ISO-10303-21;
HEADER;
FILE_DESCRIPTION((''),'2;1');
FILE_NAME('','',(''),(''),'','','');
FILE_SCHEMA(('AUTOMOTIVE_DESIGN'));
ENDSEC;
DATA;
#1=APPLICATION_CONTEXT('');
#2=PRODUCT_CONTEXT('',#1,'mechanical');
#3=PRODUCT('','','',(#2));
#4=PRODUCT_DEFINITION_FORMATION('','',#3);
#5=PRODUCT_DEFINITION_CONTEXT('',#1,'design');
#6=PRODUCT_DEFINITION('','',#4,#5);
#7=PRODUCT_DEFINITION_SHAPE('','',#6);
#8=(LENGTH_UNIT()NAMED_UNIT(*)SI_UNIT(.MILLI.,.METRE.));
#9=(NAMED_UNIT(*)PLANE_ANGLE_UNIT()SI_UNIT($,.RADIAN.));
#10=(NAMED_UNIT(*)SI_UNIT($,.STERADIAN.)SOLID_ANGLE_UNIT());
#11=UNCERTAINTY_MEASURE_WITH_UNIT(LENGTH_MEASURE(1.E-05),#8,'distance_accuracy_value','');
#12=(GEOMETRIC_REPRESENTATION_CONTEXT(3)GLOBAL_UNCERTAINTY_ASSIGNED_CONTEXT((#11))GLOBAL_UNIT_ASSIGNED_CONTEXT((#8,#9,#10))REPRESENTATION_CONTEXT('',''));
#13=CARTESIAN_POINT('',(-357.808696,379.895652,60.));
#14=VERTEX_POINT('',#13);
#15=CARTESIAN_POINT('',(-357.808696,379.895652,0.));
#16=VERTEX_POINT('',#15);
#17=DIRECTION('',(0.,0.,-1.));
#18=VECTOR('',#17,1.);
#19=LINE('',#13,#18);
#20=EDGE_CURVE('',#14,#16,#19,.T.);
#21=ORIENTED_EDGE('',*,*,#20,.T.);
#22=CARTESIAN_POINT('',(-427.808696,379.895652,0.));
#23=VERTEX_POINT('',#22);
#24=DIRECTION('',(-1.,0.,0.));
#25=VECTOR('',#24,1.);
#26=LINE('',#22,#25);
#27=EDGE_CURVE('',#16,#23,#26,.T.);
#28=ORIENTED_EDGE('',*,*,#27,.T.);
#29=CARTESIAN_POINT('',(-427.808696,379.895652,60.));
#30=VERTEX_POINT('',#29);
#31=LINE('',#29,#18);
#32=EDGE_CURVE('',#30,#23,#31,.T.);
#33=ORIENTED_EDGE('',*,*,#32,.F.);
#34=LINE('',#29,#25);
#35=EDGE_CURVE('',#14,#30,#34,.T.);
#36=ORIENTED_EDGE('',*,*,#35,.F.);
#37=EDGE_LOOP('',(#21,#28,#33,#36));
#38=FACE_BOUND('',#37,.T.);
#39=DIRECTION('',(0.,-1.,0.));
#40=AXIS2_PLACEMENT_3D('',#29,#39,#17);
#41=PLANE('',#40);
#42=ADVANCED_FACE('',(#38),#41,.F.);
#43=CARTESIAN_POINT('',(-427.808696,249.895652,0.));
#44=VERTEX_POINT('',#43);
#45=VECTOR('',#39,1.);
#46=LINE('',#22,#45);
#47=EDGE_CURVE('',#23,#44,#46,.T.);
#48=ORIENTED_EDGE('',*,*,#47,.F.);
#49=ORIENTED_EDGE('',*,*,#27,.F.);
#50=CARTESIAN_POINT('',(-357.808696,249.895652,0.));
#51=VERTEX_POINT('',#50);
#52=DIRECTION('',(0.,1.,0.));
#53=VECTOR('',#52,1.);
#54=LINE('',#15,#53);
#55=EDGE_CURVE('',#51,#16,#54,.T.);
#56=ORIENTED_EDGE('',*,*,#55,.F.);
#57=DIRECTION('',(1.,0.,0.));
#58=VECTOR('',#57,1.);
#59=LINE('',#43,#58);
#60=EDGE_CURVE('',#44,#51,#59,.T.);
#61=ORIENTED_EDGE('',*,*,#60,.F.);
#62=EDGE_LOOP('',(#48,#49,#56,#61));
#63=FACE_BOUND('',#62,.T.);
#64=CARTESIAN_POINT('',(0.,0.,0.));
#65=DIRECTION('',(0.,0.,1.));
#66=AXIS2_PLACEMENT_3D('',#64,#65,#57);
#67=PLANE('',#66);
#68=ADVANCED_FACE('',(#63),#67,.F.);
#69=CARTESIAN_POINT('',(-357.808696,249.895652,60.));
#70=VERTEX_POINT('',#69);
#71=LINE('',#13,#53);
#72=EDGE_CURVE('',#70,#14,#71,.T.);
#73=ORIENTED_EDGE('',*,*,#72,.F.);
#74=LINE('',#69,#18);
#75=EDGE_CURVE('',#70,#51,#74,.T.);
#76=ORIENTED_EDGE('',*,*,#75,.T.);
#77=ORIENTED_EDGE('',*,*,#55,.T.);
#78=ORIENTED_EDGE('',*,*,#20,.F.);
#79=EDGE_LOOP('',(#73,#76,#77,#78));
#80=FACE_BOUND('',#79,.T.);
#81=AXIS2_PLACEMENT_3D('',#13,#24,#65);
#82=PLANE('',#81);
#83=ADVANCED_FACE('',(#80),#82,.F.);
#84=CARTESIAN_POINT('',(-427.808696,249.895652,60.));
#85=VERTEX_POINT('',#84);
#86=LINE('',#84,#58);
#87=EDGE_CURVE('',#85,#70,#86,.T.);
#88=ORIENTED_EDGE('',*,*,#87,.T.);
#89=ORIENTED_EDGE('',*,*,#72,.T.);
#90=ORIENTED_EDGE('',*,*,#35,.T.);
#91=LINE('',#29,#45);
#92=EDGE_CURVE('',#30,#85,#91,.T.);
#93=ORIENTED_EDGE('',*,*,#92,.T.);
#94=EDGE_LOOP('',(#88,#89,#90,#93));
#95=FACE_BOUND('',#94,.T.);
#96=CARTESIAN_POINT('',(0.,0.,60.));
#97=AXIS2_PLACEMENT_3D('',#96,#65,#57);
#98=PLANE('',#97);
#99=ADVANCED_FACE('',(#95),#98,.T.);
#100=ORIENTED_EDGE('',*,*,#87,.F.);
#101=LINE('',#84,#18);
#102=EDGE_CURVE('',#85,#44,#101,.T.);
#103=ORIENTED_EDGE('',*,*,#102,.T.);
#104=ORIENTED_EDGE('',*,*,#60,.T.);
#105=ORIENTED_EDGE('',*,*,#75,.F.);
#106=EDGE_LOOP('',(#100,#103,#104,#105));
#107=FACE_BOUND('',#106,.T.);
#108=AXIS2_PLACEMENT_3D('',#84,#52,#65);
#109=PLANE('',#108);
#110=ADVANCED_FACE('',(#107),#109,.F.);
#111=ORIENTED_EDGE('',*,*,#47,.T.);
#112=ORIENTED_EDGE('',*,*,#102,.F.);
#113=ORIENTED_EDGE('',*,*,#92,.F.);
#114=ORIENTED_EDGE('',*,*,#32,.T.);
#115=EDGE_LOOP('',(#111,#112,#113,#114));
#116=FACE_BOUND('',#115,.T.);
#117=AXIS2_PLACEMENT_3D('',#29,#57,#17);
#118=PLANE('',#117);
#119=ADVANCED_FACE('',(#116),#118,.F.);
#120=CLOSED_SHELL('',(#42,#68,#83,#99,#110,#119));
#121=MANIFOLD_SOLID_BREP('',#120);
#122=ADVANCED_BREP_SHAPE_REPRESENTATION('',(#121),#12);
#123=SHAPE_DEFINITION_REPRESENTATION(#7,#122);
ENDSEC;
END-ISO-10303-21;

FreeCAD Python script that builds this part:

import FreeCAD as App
import Part
import Sketcher

V = App.Vector


def add_polygon(sketch, points):
    """Adds a closed chain of lines whose ends are joined by coincident constraints."""
    first, n = sketch.GeometryCount, len(points)
    for a, b in zip(points, points[1:] + points[:1]):
        sketch.addGeometry(Part.LineSegment(App.Vector(*a, 0), App.Vector(*b, 0)), False)
    for i in range(n):
        sketch.addConstraint(Sketcher.Constraint("Coincident", first + i, 2, first + (i + 1) % n, 1))

doc = App.newDocument("Part")
body = doc.addObject("PartDesign::Body", "Body")

# Sketch on XY plane
sketch1 = body.newObject("Sketcher::SketchObject", "Sketch")
sketch1.AttachmentSupport = (doc.getObject("XY_Plane"), [""])
sketch1.MapMode = "FlatFace"
add_polygon(sketch1, [(-428, 380), (-428, 250), (-358, 250), (-358, 380)])  # lines 0-3
sketch1.addConstraint(Sketcher.Constraint("Vertical", 0))
sketch1.addConstraint(Sketcher.Constraint("Horizontal", 1))
sketch1.addConstraint(Sketcher.Constraint("Vertical", 2))
sketch1.addConstraint(Sketcher.Constraint("Horizontal", 3))
sketch1.addConstraint(Sketcher.Constraint("DistanceX", 1, 1, 1, 2, 70.0))
sketch1.addConstraint(Sketcher.Constraint("DistanceY", 0, 2, 0, 1, 130.0))
sketch1.addConstraint(Sketcher.Constraint("DistanceX", 0, 2, -1, 1, 427.808696))
sketch1.addConstraint(Sketcher.Constraint("DistanceY", -1, 1, 0, 2, 249.895652))
pad1 = body.newObject("PartDesign::Pad", "Pad")
pad1.Profile = sketch1
pad1.Length = 60

doc.recompute()
